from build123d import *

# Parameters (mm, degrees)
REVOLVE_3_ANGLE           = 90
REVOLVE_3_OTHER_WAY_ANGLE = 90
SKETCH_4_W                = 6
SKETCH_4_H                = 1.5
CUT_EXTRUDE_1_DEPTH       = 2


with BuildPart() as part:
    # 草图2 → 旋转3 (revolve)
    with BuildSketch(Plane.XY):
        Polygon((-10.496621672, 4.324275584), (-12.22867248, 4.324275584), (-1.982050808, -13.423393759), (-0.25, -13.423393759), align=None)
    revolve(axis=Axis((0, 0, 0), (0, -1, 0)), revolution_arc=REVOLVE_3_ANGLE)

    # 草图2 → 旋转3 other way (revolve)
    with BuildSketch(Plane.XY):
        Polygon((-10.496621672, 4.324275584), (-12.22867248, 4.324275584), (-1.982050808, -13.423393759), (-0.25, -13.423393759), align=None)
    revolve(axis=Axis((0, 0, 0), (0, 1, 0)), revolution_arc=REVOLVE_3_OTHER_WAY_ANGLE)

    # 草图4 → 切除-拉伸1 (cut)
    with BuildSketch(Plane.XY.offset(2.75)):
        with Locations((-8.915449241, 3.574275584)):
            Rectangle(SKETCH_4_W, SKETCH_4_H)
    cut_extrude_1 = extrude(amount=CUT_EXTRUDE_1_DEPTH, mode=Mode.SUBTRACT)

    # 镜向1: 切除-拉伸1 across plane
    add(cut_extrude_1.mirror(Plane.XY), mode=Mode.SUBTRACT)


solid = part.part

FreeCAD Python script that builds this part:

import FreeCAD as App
import Part
import Sketcher

V = App.Vector
Q = App.Units.Quantity

doc = App.newDocument("Part")
params = doc.addObject("Spreadsheet::Sheet", "Params")
for row, (alias, value) in enumerate([
    ("revolution_angle", "90 deg"),
    ("revolution2_angle", "90 deg"),
    ("sketch3_width", "6 mm"),
    ("sketch3_height", "1.5 mm"),
    ("pocket1_length", "2 mm"),
], start=1):
    params.set(f"A{row}", alias)
    params.set(f"B{row}", "=" + value)
    params.setAlias(f"B{row}", alias)

body = doc.addObject("PartDesign::Body", "Body")

# Sketch on XY plane
sketch1 = body.newObject("Sketcher::SketchObject", "Sketch")
sketch1.AttachmentSupport = (doc.getObject("XY_Plane"), [""])
sketch1.MapMode = "FlatFace"
sketch1.addGeometry(Part.LineSegment(V(-10.5, 4.3, 0), V(-12.2, 4.3, 0)), False)
sketch1.addGeometry(Part.LineSegment(V(-12.2, 4.3, 0), V(-2, -13.4, 0)), False)
sketch1.addGeometry(Part.LineSegment(V(-2, -13.4, 0), V(-0.2, -13.4, 0)), False)
sketch1.addGeometry(Part.LineSegment(V(-0.2, -13.4, 0), V(-10.5, 4.3, 0)), False)
sketch1.addConstraint(Sketcher.Constraint("Coincident", 0, 2, 1, 1))
sketch1.addConstraint(Sketcher.Constraint("Coincident", 1, 2, 2, 1))
sketch1.addConstraint(Sketcher.Constraint("Coincident", 2, 2, 3, 1))
sketch1.addConstraint(Sketcher.Constraint("Coincident", 3, 2, 0, 1))
sketch1.addConstraint(Sketcher.Constraint("Horizontal", 0))
sketch1.addConstraint(Sketcher.Constraint("Horizontal", 2))
sketch1.addConstraint(Sketcher.Constraint("Parallel", 1, 3))
sketch1.addConstraint(Sketcher.Constraint("Angle", 1, Q("-60 deg")))
sketch1.addConstraint(Sketcher.Constraint("DistanceX", 2, 2, -1, 1, Q("0.25 mm")))
sketch1.addConstraint(Sketcher.Constraint("DistanceX", 0, 2, 0, 1, Q("1.732051 mm")))
sketch1.addConstraint(Sketcher.Constraint("DistanceX", 3, 2, -1, 1, Q("10.496622 mm")))
sketch1.addConstraint(Sketcher.Constraint("DistanceY", -1, 1, 0, 2, Q("4.324276 mm")))
revolution = body.newObject("PartDesign::Revolution", "Revolution")
revolution.Profile = sketch1
revolution.ReferenceAxis = (sketch1, ["V_Axis"])
revolution.setExpression("Angle", "Params.revolution_angle")
revolution.Reversed = True

# Sketch on XY plane
sketch2 = body.newObject("Sketcher::SketchObject", "Sketch001")
sketch2.AttachmentSupport = (doc.getObject("XY_Plane"), [""])
sketch2.MapMode = "FlatFace"
sketch2.addGeometry(Part.LineSegment(V(-10.5, 4.3, 0), V(-12.2, 4.3, 0)), False)
sketch2.addGeometry(Part.LineSegment(V(-12.2, 4.3, 0), V(-2, -13.4, 0)), False)
sketch2.addGeometry(Part.LineSegment(V(-2, -13.4, 0), V(-0.2, -13.4, 0)), False)
sketch2.addGeometry(Part.LineSegment(V(-0.2, -13.4, 0), V(-10.5, 4.3, 0)), False)
sketch2.addConstraint(Sketcher.Constraint("Coincident", 0, 2, 1, 1))
sketch2.addConstraint(Sketcher.Constraint("Coincident", 1, 2, 2, 1))
sketch2.addConstraint(Sketcher.Constraint("Coincident", 2, 2, 3, 1))
sketch2.addConstraint(Sketcher.Constraint("Coincident", 3, 2, 0, 1))
sketch2.addConstraint(Sketcher.Constraint("Horizontal", 0))
sketch2.addConstraint(Sketcher.Constraint("Horizontal", 2))
sketch2.addConstraint(Sketcher.Constraint("Parallel", 1, 3))
sketch2.addConstraint(Sketcher.Constraint("Angle", 1, Q("-60 deg")))
sketch2.addConstraint(Sketcher.Constraint("DistanceX", 2, 2, -1, 1, Q("0.25 mm")))
sketch2.addConstraint(Sketcher.Constraint("DistanceX", 0, 2, 0, 1, Q("1.732051 mm")))
sketch2.addConstraint(Sketcher.Constraint("DistanceX", 3, 2, -1, 1, Q("10.496622 mm")))
sketch2.addConstraint(Sketcher.Constraint("DistanceY", -1, 1, 0, 2, Q("4.324276 mm")))
revolution2 = body.newObject("PartDesign::Revolution", "Revolution001")
revolution2.Profile = sketch2
revolution2.ReferenceAxis = (sketch2, ["V_Axis"])
revolution2.setExpression("Angle", "Params.revolution2_angle")

# Sketch on XY plane
sketch3 = body.newObject("Sketcher::SketchObject", "Sketch002")
sketch3.AttachmentSupport = (doc.getObject("XY_Plane"), [""])
sketch3.MapMode = "FlatFace"
sketch3.AttachmentOffset = App.Placement(V(0, 0, 2.75), App.Rotation())
sketch3.addGeometry(Part.LineSegment(V(-11.9, 4.3, 0), V(-11.9, 2.8, 0)), False)
sketch3.addGeometry(Part.LineSegment(V(-11.9, 2.8, 0), V(-5.9, 2.8, 0)), False)
sketch3.addGeometry(Part.LineSegment(V(-5.9, 2.8, 0), V(-5.9, 4.3, 0)), False)
sketch3.addGeometry(Part.LineSegment(V(-5.9, 4.3, 0), V(-11.9, 4.3, 0)), False)
sketch3.addConstraint(Sketcher.Constraint("Coincident", 0, 2, 1, 1))
sketch3.addConstraint(Sketcher.Constraint("Coincident", 1, 2, 2, 1))
sketch3.addConstraint(Sketcher.Constraint("Coincident", 2, 2, 3, 1))
sketch3.addConstraint(Sketcher.Constraint("Coincident", 3, 2, 0, 1))
sketch3.addConstraint(Sketcher.Constraint("Vertical", 0))
sketch3.addConstraint(Sketcher.Constraint("Horizontal", 1))
sketch3.addConstraint(Sketcher.Constraint("Vertical", 2))
sketch3.addConstraint(Sketcher.Constraint("Horizontal", 3))
sketch3.addConstraint(Sketcher.Constraint("DistanceX", 1, 1, 1, 2, Q("6 mm")))
sketch3.addConstraint(Sketcher.Constraint("DistanceY", 0, 2, 0, 1, Q("1.5 mm")))
sketch3.addConstraint(Sketcher.Constraint("DistanceX", 0, 2, -1, 1, Q("11.915449 mm")))
sketch3.addConstraint(Sketcher.Constraint("DistanceY", -1, 1, 0, 2, Q("2.824276 mm")))
sketch3.setExpression("Constraints[8]", "Params.sketch3_width")
sketch3.setExpression("Constraints[9]", "Params.sketch3_height")
pocket1 = body.newObject("PartDesign::Pocket", "Pocket")
pocket1.Profile = sketch3
pocket1.setExpression("Length", "Params.pocket1_length")
pocket1.Reversed = True
doc.recompute()

mirrored = body.newObject("PartDesign::Mirrored", "Mirrored")
mirrored.Originals = [pocket1]
mirrored.MirrorPlane = (doc.getObject("XY_Plane"), [""])
body.Tip = mirrored

doc.recompute()
